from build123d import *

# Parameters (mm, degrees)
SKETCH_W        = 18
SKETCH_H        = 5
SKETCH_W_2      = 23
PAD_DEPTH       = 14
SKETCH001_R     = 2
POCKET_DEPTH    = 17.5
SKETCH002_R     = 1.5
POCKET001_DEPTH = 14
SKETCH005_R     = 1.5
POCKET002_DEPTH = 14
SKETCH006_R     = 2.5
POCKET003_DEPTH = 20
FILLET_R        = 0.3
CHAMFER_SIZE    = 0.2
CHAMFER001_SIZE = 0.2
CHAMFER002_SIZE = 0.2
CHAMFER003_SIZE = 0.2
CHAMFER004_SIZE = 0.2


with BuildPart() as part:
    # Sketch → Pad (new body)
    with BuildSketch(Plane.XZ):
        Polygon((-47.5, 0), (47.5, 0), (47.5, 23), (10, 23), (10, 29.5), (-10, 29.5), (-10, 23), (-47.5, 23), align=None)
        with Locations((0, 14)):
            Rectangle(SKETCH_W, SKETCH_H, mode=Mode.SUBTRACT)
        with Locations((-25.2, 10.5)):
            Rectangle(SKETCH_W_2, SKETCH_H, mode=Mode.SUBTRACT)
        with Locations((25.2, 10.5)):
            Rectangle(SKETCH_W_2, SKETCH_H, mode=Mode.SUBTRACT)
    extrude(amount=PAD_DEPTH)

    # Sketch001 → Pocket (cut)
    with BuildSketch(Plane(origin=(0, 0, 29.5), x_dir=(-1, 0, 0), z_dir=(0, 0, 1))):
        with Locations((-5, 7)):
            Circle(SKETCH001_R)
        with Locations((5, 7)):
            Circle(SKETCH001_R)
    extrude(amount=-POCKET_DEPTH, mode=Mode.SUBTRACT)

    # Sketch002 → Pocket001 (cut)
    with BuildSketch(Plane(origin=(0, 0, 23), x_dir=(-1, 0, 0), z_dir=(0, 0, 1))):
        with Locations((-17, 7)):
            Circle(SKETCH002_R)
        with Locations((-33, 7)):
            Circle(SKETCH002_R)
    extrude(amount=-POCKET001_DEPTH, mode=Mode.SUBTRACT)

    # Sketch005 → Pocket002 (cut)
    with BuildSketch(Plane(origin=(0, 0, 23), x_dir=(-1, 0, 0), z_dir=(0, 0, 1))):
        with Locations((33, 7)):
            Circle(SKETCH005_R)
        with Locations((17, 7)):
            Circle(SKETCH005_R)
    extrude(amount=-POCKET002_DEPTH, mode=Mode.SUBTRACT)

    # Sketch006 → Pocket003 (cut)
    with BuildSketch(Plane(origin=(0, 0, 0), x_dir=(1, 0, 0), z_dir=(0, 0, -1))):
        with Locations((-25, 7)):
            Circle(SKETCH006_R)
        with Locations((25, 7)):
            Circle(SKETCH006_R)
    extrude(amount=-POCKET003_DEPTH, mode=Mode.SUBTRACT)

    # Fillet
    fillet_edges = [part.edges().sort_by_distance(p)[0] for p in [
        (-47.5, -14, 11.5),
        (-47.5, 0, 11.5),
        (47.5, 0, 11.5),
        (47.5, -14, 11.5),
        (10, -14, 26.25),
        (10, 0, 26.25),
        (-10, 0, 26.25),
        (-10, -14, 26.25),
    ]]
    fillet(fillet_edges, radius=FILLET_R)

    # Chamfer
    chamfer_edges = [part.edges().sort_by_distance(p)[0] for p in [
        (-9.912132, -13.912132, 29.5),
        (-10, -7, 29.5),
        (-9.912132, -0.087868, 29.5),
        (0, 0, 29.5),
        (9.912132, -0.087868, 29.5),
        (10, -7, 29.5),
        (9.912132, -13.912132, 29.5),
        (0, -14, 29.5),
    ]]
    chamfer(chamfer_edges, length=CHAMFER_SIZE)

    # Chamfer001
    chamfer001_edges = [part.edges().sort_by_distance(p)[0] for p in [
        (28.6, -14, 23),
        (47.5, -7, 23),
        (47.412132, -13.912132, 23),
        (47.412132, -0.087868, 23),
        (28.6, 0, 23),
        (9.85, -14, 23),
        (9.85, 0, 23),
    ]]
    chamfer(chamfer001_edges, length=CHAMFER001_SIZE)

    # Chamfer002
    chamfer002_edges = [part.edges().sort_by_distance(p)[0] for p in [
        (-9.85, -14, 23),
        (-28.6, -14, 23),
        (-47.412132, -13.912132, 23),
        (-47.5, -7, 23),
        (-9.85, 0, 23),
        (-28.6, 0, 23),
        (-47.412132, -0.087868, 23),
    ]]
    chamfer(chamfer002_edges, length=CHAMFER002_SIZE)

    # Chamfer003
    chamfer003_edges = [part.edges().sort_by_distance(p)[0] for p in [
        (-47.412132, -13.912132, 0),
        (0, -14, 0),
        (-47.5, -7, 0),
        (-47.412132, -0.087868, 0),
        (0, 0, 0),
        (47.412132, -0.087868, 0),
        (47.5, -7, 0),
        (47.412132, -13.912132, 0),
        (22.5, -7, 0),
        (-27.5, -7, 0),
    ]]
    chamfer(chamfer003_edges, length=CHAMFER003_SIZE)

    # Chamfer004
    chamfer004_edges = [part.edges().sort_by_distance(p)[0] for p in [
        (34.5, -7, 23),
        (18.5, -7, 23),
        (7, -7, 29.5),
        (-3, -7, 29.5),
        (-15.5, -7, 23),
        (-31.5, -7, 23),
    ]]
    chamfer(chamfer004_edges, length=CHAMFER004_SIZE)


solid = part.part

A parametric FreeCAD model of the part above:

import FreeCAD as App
import Part
import Sketcher
Q = App.Units.Quantity


def edges_at(feature, points):
    """Names of the edges that pass closest to the given points."""
    edges = feature.Shape.Edges
    near = lambda p: min(range(len(edges)), key=lambda i: edges[i].distToShape(Part.Vertex(*p))[0])
    return sorted({f"Edge{near(p) + 1}" for p in points})

doc = App.newDocument("Part")
body = doc.addObject("PartDesign::Body", "Body")

sketch1 = doc.addObject("Sketcher::SketchObject", "Sketch")
body.addObject(sketch1)
sketch1.AttachmentSupport = (doc.XZ_Plane, [""])
sketch1.MapMode = "FlatFace"
sketch1.addGeometry([
    Part.LineSegment(App.Vector(-48, 0, 0), App.Vector(48, 0, 0)),
    Part.LineSegment(App.Vector(48, 0, 0), App.Vector(48, 23, 0)),
    Part.LineSegment(App.Vector(48, 23, 0), App.Vector(10, 23, 0)),
    Part.LineSegment(App.Vector(10, 23, 0), App.Vector(10, 30, 0)),
    Part.LineSegment(App.Vector(10, 30, 0), App.Vector(-10, 30, 0)),
    Part.LineSegment(App.Vector(-10, 30, 0), App.Vector(-10, 23, 0)),
    Part.LineSegment(App.Vector(-10, 23, 0), App.Vector(-48, 23, 0)),
    Part.LineSegment(App.Vector(-48, 23, 0), App.Vector(-48, 0, 0)),
    Part.LineSegment(App.Vector(-14, 8, 0), App.Vector(-37, 8, 0)),
    Part.LineSegment(App.Vector(-37, 8, 0), App.Vector(-37, 13, 0)),
    Part.LineSegment(App.Vector(-37, 13, 0), App.Vector(-14, 13, 0)),
    Part.LineSegment(App.Vector(-14, 13, 0), App.Vector(-14, 8, 0)),
    Part.LineSegment(App.Vector(37, 8, 0), App.Vector(14, 8, 0)),
    Part.LineSegment(App.Vector(14, 8, 0), App.Vector(14, 13, 0)),
    Part.LineSegment(App.Vector(14, 13, 0), App.Vector(37, 13, 0)),
    Part.LineSegment(App.Vector(37, 13, 0), App.Vector(37, 8, 0)),
    Part.LineSegment(App.Vector(9, 12, 0), App.Vector(-9, 12, 0)),
    Part.LineSegment(App.Vector(-9, 12, 0), App.Vector(-9, 16, 0)),
    Part.LineSegment(App.Vector(-9, 16, 0), App.Vector(9, 16, 0)),
    Part.LineSegment(App.Vector(9, 16, 0), App.Vector(9, 12, 0)),
], False)
sketch1.addConstraint([
    Sketcher.Constraint("Coincident", 0, 2, 1, 1),
    Sketcher.Constraint("Coincident", 1, 2, 2, 1),
    Sketcher.Constraint("Coincident", 2, 2, 3, 1),
    Sketcher.Constraint("Coincident", 3, 2, 4, 1),
    Sketcher.Constraint("Coincident", 4, 2, 5, 1),
    Sketcher.Constraint("Coincident", 5, 2, 6, 1),
    Sketcher.Constraint("Coincident", 6, 2, 7, 1),
    Sketcher.Constraint("Coincident", 7, 2, 0, 1),
    Sketcher.Constraint("Coincident", 8, 2, 9, 1),
    Sketcher.Constraint("Coincident", 9, 2, 10, 1),
    Sketcher.Constraint("Coincident", 10, 2, 11, 1),
    Sketcher.Constraint("Coincident", 11, 2, 8, 1),
    Sketcher.Constraint("Coincident", 12, 2, 13, 1),
    Sketcher.Constraint("Coincident", 13, 2, 14, 1),
    Sketcher.Constraint("Coincident", 14, 2, 15, 1),
    Sketcher.Constraint("Coincident", 15, 2, 12, 1),
    Sketcher.Constraint("Coincident", 16, 2, 17, 1),
    Sketcher.Constraint("Coincident", 17, 2, 18, 1),
    Sketcher.Constraint("Coincident", 18, 2, 19, 1),
    Sketcher.Constraint("Coincident", 19, 2, 16, 1),
    Sketcher.Constraint("Horizontal", 0),
    Sketcher.Constraint("Vertical", 1),
    Sketcher.Constraint("Horizontal", 2),
    Sketcher.Constraint("Vertical", 3),
    Sketcher.Constraint("Horizontal", 4),
    Sketcher.Constraint("Vertical", 5),
    Sketcher.Constraint("Horizontal", 6),
    Sketcher.Constraint("Vertical", 7),
    Sketcher.Constraint("Horizontal", 8),
    Sketcher.Constraint("Vertical", 9),
    Sketcher.Constraint("Horizontal", 10),
    Sketcher.Constraint("Vertical", 11),
    Sketcher.Constraint("Horizontal", 12),
    Sketcher.Constraint("Vertical", 13),
    Sketcher.Constraint("Horizontal", 14),
    Sketcher.Constraint("Vertical", 15),
    Sketcher.Constraint("Horizontal", 16),
    Sketcher.Constraint("Vertical", 17),
    Sketcher.Constraint("Horizontal", 18),
    Sketcher.Constraint("Vertical", 19),
    Sketcher.Constraint("Symmetric", 0, 2, 7, 2, -1, 1),
    Sketcher.Constraint("Symmetric", 2, 2, 5, 2, -2),
    Sketcher.Constraint("Symmetric", 11, 2, 12, 2, -2),
    Sketcher.Constraint("Symmetric", 9, 2, 14, 2, -2),
    Sketcher.Constraint("Equal", 14, 1),
    Sketcher.Constraint("Equal", 15, 17),
    Sketcher.Constraint("DistanceX", 0, 1, 0, 2, Q("95 mm")),
    Sketcher.Constraint("DistanceX", 4, 2, 4, 1, Q("20 mm")),
    Sketcher.Constraint("DistanceX", 8, 2, 8, 1, Q("23 mm")),
    Sketcher.Constraint("DistanceX", 16, 2, 16, 1, Q("18 mm")),
    Sketcher.Constraint("DistanceY", 9, 1, 9, 2, Q("5 mm")),
    Sketcher.Constraint("DistanceY", 3, 1, 3, 2, Q("6.5 mm")),
    Sketcher.Constraint("DistanceY", -1, 1, 8, 2, Q("8 mm")),
    Sketcher.Constraint("DistanceX", 16, 2, -1, 1, Q("9 mm")),
    Sketcher.Constraint("DistanceY", 16, 2, 4, 2, Q("18 mm")),
    Sketcher.Constraint("DistanceX", 8, 2, -1, 1, Q("36.7 mm")),
])
pad1 = doc.addObject("PartDesign::Pad", "Pad")
body.addObject(pad1)
pad1.Profile = sketch1
pad1.Length = 14

sketch2 = doc.addObject("Sketcher::SketchObject", "Sketch001")
body.addObject(sketch2)
sketch2.AttachmentSupport = (doc.XY_Plane, [""])
sketch2.MapMode = "FlatFace"
sketch2.AttachmentOffset = App.Placement(App.Vector(0, 0, 29.5), App.Rotation())
sketch2.addGeometry([
    Part.Circle(App.Vector(5, -7, 0), App.Vector(0, 0, 1), 2),
    Part.Circle(App.Vector(-5, -7, 0), App.Vector(0, 0, 1), 2),
], False)
sketch2.addConstraint([
    Sketcher.Constraint("Equal", 0, 1),
    Sketcher.Constraint("Symmetric", 0, 3, 1, 3, -2),
    Sketcher.Constraint("Diameter", 0, Q("4 mm")),
    Sketcher.Constraint("DistanceX", -1, 1, 0, 3, Q("5 mm")),
    Sketcher.Constraint("DistanceY", 0, 3, -1, 1, Q("7 mm")),
])
pocket1 = doc.addObject("PartDesign::Pocket", "Pocket")
body.addObject(pocket1)
pocket1.Profile = sketch2
pocket1.Length = 17.5

sketch3 = doc.addObject("Sketcher::SketchObject", "Sketch002")
body.addObject(sketch3)
sketch3.AttachmentSupport = (doc.XY_Plane, [""])
sketch3.MapMode = "FlatFace"
sketch3.AttachmentOffset = App.Placement(App.Vector(0, 0, 23), App.Rotation())
sketch3.addGeometry([
    Part.Circle(App.Vector(17, -7, 0), App.Vector(0, 0, 1), 1.5),
    Part.Circle(App.Vector(33, -7, 0), App.Vector(0, 0, 1), 1.5),
], False)
sketch3.addConstraint([
    Sketcher.Constraint("Equal", 0, 1),
    Sketcher.Constraint("Horizontal", 0, 3, 1, 3),
    Sketcher.Constraint("Diameter", 0, Q("3 mm")),
    Sketcher.Constraint("DistanceX", -1, 1, 0, 3, Q("17 mm")),
    Sketcher.Constraint("DistanceY", 0, 3, -1, 1, Q("7 mm")),
    Sketcher.Constraint("DistanceX", -1, 1, 1, 3, Q("33 mm")),
])
pocket2 = doc.addObject("PartDesign::Pocket", "Pocket001")
body.addObject(pocket2)
pocket2.Profile = sketch3
pocket2.Length = 14

sketch4 = doc.addObject("Sketcher::SketchObject", "Sketch003")
body.addObject(sketch4)
sketch4.AttachmentSupport = (doc.XY_Plane, [""])
sketch4.MapMode = "FlatFace"
sketch4.AttachmentOffset = App.Placement(App.Vector(0, 0, 23), App.Rotation())
sketch4.addGeometry([
    Part.Circle(App.Vector(-33, -7, 0), App.Vector(0, 0, 1), 1.5),
    Part.Circle(App.Vector(-17, -7, 0), App.Vector(0, 0, 1), 1.5),
], False)
sketch4.addConstraint([
    Sketcher.Constraint("Equal", 0, 1),
    Sketcher.Constraint("Horizontal", 0, 3, 1, 3),
    Sketcher.Constraint("Diameter", 0, Q("3 mm")),
    Sketcher.Constraint("DistanceX", 0, 3, -1, 1, Q("33 mm")),
    Sketcher.Constraint("DistanceY", 0, 3, -1, 1, Q("7 mm")),
    Sketcher.Constraint("DistanceX", 1, 3, -1, 1, Q("17 mm")),
])
pocket3 = doc.addObject("PartDesign::Pocket", "Pocket002")
body.addObject(pocket3)
pocket3.Profile = sketch4
pocket3.Length = 14

sketch5 = doc.addObject("Sketcher::SketchObject", "Sketch004")
body.addObject(sketch5)
sketch5.AttachmentSupport = (doc.XY_Plane, [""])
sketch5.MapMode = "FlatFace"
sketch5.addGeometry([
    Part.Circle(App.Vector(-25, -7, 0), App.Vector(0, 0, 1), 2.5),
    Part.Circle(App.Vector(25, -7, 0), App.Vector(0, 0, 1), 2.5),
], False)
sketch5.addConstraint([
    Sketcher.Constraint("Equal", 0, 1),
    Sketcher.Constraint("Symmetric", 0, 3, 1, 3, -2),
    Sketcher.Constraint("Diameter", 0, Q("5 mm")),
    Sketcher.Constraint("DistanceX", 0, 3, -1, 1, Q("25 mm")),
    Sketcher.Constraint("DistanceY", 0, 3, -1, 1, Q("7 mm")),
])
pocket4 = doc.addObject("PartDesign::Pocket", "Pocket003")
body.addObject(pocket4)
pocket4.Profile = sketch5
pocket4.Length = 20
pocket4.Reversed = True
doc.recompute()

fillet = doc.addObject("PartDesign::Fillet", "Fillet")
body.addObject(fillet)
fillet.Base = (pocket4, edges_at(pocket4, [
    (-47.5, -14, 11.5),
    (-47.5, 0, 11.5),
    (47.5, 0, 11.5),
    (47.5, -14, 11.5),
    (10, -14, 26.25),
    (10, 0, 26.25),
    (-10, 0, 26.25),
    (-10, -14, 26.25),
]))
fillet.Radius = 0.3
doc.recompute()

chamfer = doc.addObject("PartDesign::Chamfer", "Chamfer")
body.addObject(chamfer)
chamfer.Base = (fillet, edges_at(fillet, [
    (-9.912, -13.912, 29.5),
    (-10, -7, 29.5),
    (-9.912, -0.088, 29.5),
    (0, 0, 29.5),
    (9.912, -0.088, 29.5),
    (10, -7, 29.5),
    (9.912, -13.912, 29.5),
    (0, -14, 29.5),
]))
chamfer.Size = 0.2
doc.recompute()

chamfer2 = doc.addObject("PartDesign::Chamfer", "Chamfer001")
body.addObject(chamfer2)
chamfer2.Base = (chamfer, edges_at(chamfer, [
    (28.45, -14, 23),
    (47.5, -7, 23),
    (47.412, -13.912, 23),
    (47.412, -0.088, 23),
    (28.45, 0, 23),
    (28.45, -14, 23),
    (28.45, 0, 23),
]))
chamfer2.Size = 0.2
doc.recompute()

chamfer3 = doc.addObject("PartDesign::Chamfer", "Chamfer002")
body.addObject(chamfer3)
chamfer3.Base = (chamfer2, edges_at(chamfer2, [
    (-28.45, -14, 23),
    (-28.45, -14, 23),
    (-47.412, -13.912, 23),
    (-47.5, -7, 23),
    (-28.45, 0, 23),
    (-28.45, 0, 23),
    (-47.412, -0.088, 23),
]))
chamfer3.Size = 0.2
doc.recompute()

chamfer4 = doc.addObject("PartDesign::Chamfer", "Chamfer003")
body.addObject(chamfer4)
chamfer4.Base = (chamfer3, edges_at(chamfer3, [
    (-47.412, -13.912, 0),
    (0, -14, 0),
    (-47.5, -7, 0),
    (-47.412, -0.088, 0),
    (0, 0, 0),
    (47.412, -0.088, 0),
    (47.5, -7, 0),
    (47.412, -13.912, 0),
    (22.5, -7, 0),
    (-27.5, -7, 0),
]))
chamfer4.Size = 0.2
doc.recompute()

chamfer5 = doc.addObject("PartDesign::Chamfer", "Chamfer004")
body.addObject(chamfer5)
chamfer5.Base = (chamfer4, edges_at(chamfer4, [
    (34.5, -7, 23),
    (18.5, -7, 23),
    (7, -7, 29.5),
    (-3, -7, 29.5),
    (-15.5, -7, 23),
    (-31.5, -7, 23),
]))
chamfer5.Size = 0.2

doc.recompute()
